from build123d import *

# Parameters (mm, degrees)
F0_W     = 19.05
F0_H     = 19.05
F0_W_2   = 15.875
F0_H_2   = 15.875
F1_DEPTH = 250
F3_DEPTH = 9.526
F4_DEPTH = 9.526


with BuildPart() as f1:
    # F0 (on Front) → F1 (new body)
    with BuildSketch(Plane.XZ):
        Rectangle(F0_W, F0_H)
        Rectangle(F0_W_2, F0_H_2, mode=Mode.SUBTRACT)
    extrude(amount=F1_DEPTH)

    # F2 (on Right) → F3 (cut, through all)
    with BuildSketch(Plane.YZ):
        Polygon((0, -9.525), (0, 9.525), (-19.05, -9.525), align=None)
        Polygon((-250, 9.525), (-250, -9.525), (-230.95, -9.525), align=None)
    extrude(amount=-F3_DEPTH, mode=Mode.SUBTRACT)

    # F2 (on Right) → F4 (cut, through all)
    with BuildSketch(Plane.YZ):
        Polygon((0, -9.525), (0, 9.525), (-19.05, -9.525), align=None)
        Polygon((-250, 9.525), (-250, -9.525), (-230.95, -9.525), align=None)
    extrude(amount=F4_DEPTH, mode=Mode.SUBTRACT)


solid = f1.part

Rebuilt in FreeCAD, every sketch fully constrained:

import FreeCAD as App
import Part
import Sketcher
Q = App.Units.Quantity

doc = App.newDocument("Part")
body = doc.addObject("PartDesign::Body", "Body")

sketch1 = doc.addObject("Sketcher::SketchObject", "Sketch")
body.addObject(sketch1)
sketch1.AttachmentSupport = (doc.XZ_Plane, [""])
sketch1.MapMode = "FlatFace"
sketch1.addGeometry([
    Part.LineSegment(App.Vector(-9.525, 9.525, 0), App.Vector(-9.525, -9.525, 0)),
    Part.LineSegment(App.Vector(-9.525, -9.525, 0), App.Vector(9.525, -9.525, 0)),
    Part.LineSegment(App.Vector(9.525, -9.525, 0), App.Vector(9.525, 9.525, 0)),
    Part.LineSegment(App.Vector(9.525, 9.525, 0), App.Vector(-9.525, 9.525, 0)),
    Part.LineSegment(App.Vector(7.9375, -7.9375, 0), App.Vector(-7.9375, -7.9375, 0)),
    Part.LineSegment(App.Vector(-7.9375, -7.9375, 0), App.Vector(-7.9375, 7.9375, 0)),
    Part.LineSegment(App.Vector(-7.9375, 7.9375, 0), App.Vector(7.9375, 7.9375, 0)),
    Part.LineSegment(App.Vector(7.9375, 7.9375, 0), App.Vector(7.9375, -7.9375, 0)),
], False)
sketch1.addConstraint([
    Sketcher.Constraint("Coincident", 0, 2, 1, 1),
    Sketcher.Constraint("Coincident", 1, 2, 2, 1),
    Sketcher.Constraint("Coincident", 2, 2, 3, 1),
    Sketcher.Constraint("Coincident", 3, 2, 0, 1),
    Sketcher.Constraint("Coincident", 4, 2, 5, 1),
    Sketcher.Constraint("Coincident", 5, 2, 6, 1),
    Sketcher.Constraint("Coincident", 6, 2, 7, 1),
    Sketcher.Constraint("Coincident", 7, 2, 4, 1),
    Sketcher.Constraint("Vertical", 0),
    Sketcher.Constraint("Horizontal", 1),
    Sketcher.Constraint("Vertical", 2),
    Sketcher.Constraint("Horizontal", 3),
    Sketcher.Constraint("Horizontal", 4),
    Sketcher.Constraint("Vertical", 5),
    Sketcher.Constraint("Horizontal", 6),
    Sketcher.Constraint("Vertical", 7),
    Sketcher.Constraint("Symmetric", 0, 2, 2, 2, -1, 1),
    Sketcher.Constraint("Symmetric", 4, 2, 6, 2, -1, 1),
    Sketcher.Constraint("Equal", 3, 0),
    Sketcher.Constraint("Equal", 6, 5),
    Sketcher.Constraint("DistanceX", 1, 1, 1, 2, Q("0.75 in")),
    Sketcher.Constraint("DistanceX", 4, 2, 4, 1, Q("0.625 in")),
])
pad1 = doc.addObject("PartDesign::Pad", "Pad")
body.addObject(pad1)
pad1.Profile = sketch1
pad1.Length = 250

sketch2 = doc.addObject("Sketcher::SketchObject", "Sketch001")
body.addObject(sketch2)
sketch2.AttachmentSupport = (doc.YZ_Plane, [""])
sketch2.MapMode = "FlatFace"
sketch2.addGeometry([
    Part.LineSegment(App.Vector(0, -9.525, 0), App.Vector(0, 9.525, 0)),
    Part.LineSegment(App.Vector(0, 9.525, 0), App.Vector(-19.05, -9.525, 0)),
    Part.LineSegment(App.Vector(-19.05, -9.525, 0), App.Vector(0, -9.525, 0)),
    Part.LineSegment(App.Vector(-250, 9.525, 0), App.Vector(-250, -9.525, 0)),
    Part.LineSegment(App.Vector(-250, -9.525, 0), App.Vector(-230.95, -9.525, 0)),
    Part.LineSegment(App.Vector(-230.95, -9.525, 0), App.Vector(-250, 9.525, 0)),
], False)
sketch2.addConstraint([
    Sketcher.Constraint("Coincident", 0, 2, 1, 1),
    Sketcher.Constraint("Coincident", 1, 2, 2, 1),
    Sketcher.Constraint("Coincident", 2, 2, 0, 1),
    Sketcher.Constraint("Coincident", 3, 2, 4, 1),
    Sketcher.Constraint("Coincident", 4, 2, 5, 1),
    Sketcher.Constraint("Coincident", 5, 2, 3, 1),
    Sketcher.Constraint("Vertical", 0),
    Sketcher.Constraint("Horizontal", 2),
    Sketcher.Constraint("Vertical", 3),
    Sketcher.Constraint("Horizontal", 4),
    Sketcher.Constraint("Symmetric", 0, 2, 2, 2, -1, 1),
    Sketcher.Constraint("Perpendicular", 1, 5),
    Sketcher.Constraint("Horizontal", 2, 2, 3, 2),
    Sketcher.Constraint("Horizontal", 0, 2, 5, 2),
    Sketcher.Constraint("Equal", 2, 4),
    Sketcher.Constraint("DistanceX", 2, 1, 2, 2, Q("0.75 in")),
    Sketcher.Constraint("DistanceX", 3, 2, -1, 1, 250.0),
])
pocket1 = doc.addObject("PartDesign::Pocket", "Pocket")
body.addObject(pocket1)
pocket1.Profile = sketch2
pocket1.Type = "ThroughAll"

sketch3 = doc.addObject("Sketcher::SketchObject", "Sketch002")
body.addObject(sketch3)
sketch3.AttachmentSupport = (doc.YZ_Plane, [""])
sketch3.MapMode = "FlatFace"
sketch3.addGeometry([
    Part.LineSegment(App.Vector(0, -9.525, 0), App.Vector(0, 9.525, 0)),
    Part.LineSegment(App.Vector(0, 9.525, 0), App.Vector(-19.05, -9.525, 0)),
    Part.LineSegment(App.Vector(-19.05, -9.525, 0), App.Vector(0, -9.525, 0)),
    Part.LineSegment(App.Vector(-250, 9.525, 0), App.Vector(-250, -9.525, 0)),
    Part.LineSegment(App.Vector(-250, -9.525, 0), App.Vector(-230.95, -9.525, 0)),
    Part.LineSegment(App.Vector(-230.95, -9.525, 0), App.Vector(-250, 9.525, 0)),
], False)
sketch3.addConstraint([
    Sketcher.Constraint("Coincident", 0, 2, 1, 1),
    Sketcher.Constraint("Coincident", 1, 2, 2, 1),
    Sketcher.Constraint("Coincident", 2, 2, 0, 1),
    Sketcher.Constraint("Coincident", 3, 2, 4, 1),
    Sketcher.Constraint("Coincident", 4, 2, 5, 1),
    Sketcher.Constraint("Coincident", 5, 2, 3, 1),
    Sketcher.Constraint("Vertical", 0),
    Sketcher.Constraint("Horizontal", 2),
    Sketcher.Constraint("Vertical", 3),
    Sketcher.Constraint("Horizontal", 4),
    Sketcher.Constraint("Symmetric", 0, 2, 2, 2, -1, 1),
    Sketcher.Constraint("Perpendicular", 1, 5),
    Sketcher.Constraint("Horizontal", 2, 2, 3, 2),
    Sketcher.Constraint("Horizontal", 0, 2, 5, 2),
    Sketcher.Constraint("Equal", 2, 4),
    Sketcher.Constraint("DistanceX", 2, 1, 2, 2, Q("0.75 in")),
    Sketcher.Constraint("DistanceX", 3, 2, -1, 1, 250.0),
])
pocket2 = doc.addObject("PartDesign::Pocket", "Pocket001")
body.addObject(pocket2)
pocket2.Profile = sketch3
pocket2.Type = "ThroughAll"
pocket2.Reversed = True

doc.recompute()
